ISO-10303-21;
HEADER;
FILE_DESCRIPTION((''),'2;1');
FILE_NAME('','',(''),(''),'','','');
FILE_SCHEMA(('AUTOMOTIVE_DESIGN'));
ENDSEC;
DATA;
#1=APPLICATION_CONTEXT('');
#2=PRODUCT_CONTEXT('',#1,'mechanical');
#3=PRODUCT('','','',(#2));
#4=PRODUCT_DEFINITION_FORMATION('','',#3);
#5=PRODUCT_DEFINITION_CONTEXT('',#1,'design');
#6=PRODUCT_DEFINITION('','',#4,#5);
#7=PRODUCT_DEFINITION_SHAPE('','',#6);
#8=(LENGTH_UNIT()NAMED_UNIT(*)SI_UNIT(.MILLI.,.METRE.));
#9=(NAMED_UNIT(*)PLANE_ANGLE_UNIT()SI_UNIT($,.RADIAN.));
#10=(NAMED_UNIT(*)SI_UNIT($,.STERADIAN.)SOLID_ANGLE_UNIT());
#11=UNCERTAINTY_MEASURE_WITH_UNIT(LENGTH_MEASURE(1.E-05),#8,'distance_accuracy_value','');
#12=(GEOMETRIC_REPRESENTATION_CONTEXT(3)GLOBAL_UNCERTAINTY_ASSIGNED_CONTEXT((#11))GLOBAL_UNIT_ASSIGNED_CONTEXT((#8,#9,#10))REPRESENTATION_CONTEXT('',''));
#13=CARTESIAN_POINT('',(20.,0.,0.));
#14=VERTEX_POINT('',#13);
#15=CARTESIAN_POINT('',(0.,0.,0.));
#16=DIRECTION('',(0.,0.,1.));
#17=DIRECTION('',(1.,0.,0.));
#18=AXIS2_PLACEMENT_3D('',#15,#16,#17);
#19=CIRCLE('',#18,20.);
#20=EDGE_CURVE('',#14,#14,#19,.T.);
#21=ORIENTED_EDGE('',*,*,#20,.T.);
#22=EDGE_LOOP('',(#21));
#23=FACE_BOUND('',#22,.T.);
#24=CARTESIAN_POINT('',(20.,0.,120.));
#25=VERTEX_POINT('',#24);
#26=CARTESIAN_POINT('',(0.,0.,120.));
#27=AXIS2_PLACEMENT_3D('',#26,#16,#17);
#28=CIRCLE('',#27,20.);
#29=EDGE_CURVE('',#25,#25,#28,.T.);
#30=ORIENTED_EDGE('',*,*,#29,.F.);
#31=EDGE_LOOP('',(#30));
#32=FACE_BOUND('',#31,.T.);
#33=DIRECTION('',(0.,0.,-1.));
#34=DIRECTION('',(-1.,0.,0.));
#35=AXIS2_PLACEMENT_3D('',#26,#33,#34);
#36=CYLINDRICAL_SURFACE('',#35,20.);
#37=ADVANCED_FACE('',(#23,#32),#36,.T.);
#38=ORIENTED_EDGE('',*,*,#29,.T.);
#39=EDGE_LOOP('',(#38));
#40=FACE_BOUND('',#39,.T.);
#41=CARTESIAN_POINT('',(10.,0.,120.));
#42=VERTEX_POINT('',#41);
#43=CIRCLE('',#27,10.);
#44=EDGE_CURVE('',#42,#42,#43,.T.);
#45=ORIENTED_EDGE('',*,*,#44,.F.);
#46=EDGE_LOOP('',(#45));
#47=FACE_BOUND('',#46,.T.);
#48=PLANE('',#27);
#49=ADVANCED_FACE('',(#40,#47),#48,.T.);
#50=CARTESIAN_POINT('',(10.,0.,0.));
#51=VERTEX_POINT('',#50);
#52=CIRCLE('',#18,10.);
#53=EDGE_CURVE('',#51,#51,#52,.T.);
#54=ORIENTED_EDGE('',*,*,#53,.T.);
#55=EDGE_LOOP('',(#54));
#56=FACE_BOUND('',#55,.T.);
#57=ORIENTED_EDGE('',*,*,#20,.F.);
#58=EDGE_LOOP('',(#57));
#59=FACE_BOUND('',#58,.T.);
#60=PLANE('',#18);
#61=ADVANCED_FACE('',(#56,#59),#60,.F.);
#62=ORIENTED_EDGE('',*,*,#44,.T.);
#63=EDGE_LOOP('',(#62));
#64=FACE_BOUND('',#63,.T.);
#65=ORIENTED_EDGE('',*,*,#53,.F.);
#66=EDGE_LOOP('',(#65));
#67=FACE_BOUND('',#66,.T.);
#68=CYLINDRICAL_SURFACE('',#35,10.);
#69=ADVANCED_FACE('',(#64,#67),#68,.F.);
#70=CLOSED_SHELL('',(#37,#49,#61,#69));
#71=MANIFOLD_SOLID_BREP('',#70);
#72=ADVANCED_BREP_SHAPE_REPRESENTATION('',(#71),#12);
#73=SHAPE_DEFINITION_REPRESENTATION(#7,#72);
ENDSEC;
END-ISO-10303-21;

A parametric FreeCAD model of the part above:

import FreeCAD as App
import Part
import Sketcher

V = App.Vector

doc = App.newDocument("Part")
params = doc.addObject("Spreadsheet::Sheet", "Params")
for row, (alias, value) in enumerate([
    ("sketch1_diameter", "40 mm"),
    ("sketch1_diameter2", "20 mm"),
    ("pad1_length", "120 mm"),
], start=1):
    params.set(f"A{row}", alias)
    params.set(f"B{row}", "=" + value)
    params.setAlias(f"B{row}", alias)

body = doc.addObject("PartDesign::Body", "Body")

# Sketch on XY plane
sketch1 = body.newObject("Sketcher::SketchObject", "Sketch")
sketch1.AttachmentSupport = (doc.getObject("XY_Plane"), [""])
sketch1.MapMode = "FlatFace"
sketch1.addGeometry([
    Part.Circle(V(0, 0, 0), V(0, 0, 1), 20),
    Part.Circle(V(0, 0, 0), V(0, 0, 1), 10),
], False)
sketch1.addConstraint([
    Sketcher.Constraint("Coincident", 0, 3, -1, 1),
    Sketcher.Constraint("Coincident", 1, 3, -1, 1),
    Sketcher.Constraint("Diameter", 0, 40.0),
    Sketcher.Constraint("Diameter", 1, 20.0),
])
sketch1.setExpression("Constraints[2]", "Params.sketch1_diameter")
sketch1.setExpression("Constraints[3]", "Params.sketch1_diameter2")
pad1 = body.newObject("PartDesign::Pad", "Pad")
pad1.Profile = sketch1
pad1.setExpression("Length", "Params.pad1_length")

doc.recompute()
